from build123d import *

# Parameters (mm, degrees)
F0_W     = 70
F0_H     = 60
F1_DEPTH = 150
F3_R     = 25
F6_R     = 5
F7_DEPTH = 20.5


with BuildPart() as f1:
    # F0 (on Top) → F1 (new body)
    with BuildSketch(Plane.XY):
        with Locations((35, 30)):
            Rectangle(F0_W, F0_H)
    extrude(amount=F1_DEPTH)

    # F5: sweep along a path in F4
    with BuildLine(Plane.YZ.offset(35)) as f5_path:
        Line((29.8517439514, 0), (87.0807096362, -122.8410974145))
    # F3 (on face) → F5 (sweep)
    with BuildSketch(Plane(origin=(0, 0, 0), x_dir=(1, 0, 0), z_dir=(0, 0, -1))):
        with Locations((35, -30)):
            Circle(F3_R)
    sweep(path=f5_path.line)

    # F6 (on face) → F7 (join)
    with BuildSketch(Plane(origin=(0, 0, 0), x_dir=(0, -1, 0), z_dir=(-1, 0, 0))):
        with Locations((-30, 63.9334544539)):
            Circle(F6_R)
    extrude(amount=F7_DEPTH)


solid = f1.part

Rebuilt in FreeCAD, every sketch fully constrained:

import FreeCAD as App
import Part
import Sketcher

doc = App.newDocument("Part")
body = doc.addObject("PartDesign::Body", "Body")

# Sketch on XY plane
sketch1 = body.newObject("Sketcher::SketchObject", "Sketch")
sketch1.AttachmentSupport = (doc.getObject("XY_Plane"), [""])
sketch1.MapMode = "FlatFace"
sketch1.addGeometry([
    Part.LineSegment(App.Vector(0, 60, 0), App.Vector(0, 0, 0)),
    Part.LineSegment(App.Vector(0, 0, 0), App.Vector(70, 0, 0)),
    Part.LineSegment(App.Vector(70, 0, 0), App.Vector(70, 60, 0)),
    Part.LineSegment(App.Vector(70, 60, 0), App.Vector(0, 60, 0)),
], False)
sketch1.addConstraint([
    Sketcher.Constraint("Coincident", 0, 2, 1, 1),
    Sketcher.Constraint("Coincident", 1, 2, 2, 1),
    Sketcher.Constraint("Coincident", 2, 2, 3, 1),
    Sketcher.Constraint("Coincident", 3, 2, 0, 1),
    Sketcher.Constraint("Vertical", 0),
    Sketcher.Constraint("Horizontal", 1),
    Sketcher.Constraint("Vertical", 2),
    Sketcher.Constraint("Horizontal", 3),
    Sketcher.Constraint("Coincident", 0, 2, -1, 1),
    Sketcher.Constraint("DistanceX", 1, 1, 1, 2, 70.0),
    Sketcher.Constraint("DistanceY", 0, 2, 0, 1, 60.0),
])
pad1 = body.newObject("PartDesign::Pad", "Pad")
pad1.Profile = sketch1
pad1.Length = 150

# Sketch on XY plane
sketch2 = body.newObject("Sketcher::SketchObject", "Sketch001")
sketch2.AttachmentSupport = (doc.getObject("XY_Plane"), [""])
sketch2.MapMode = "FlatFace"
sketch2.addGeometry(Part.Circle(App.Vector(35, 30, 0), App.Vector(0, 0, 1), 25), False)
sketch2.addConstraint([
    Sketcher.Constraint("Diameter", 0, 50.0),
    Sketcher.Constraint("DistanceX", -1, 1, 0, 3, 35.0),
    Sketcher.Constraint("DistanceY", -1, 1, 0, 3, 30.0),
])

# Sketch on an angled plane
sketch3 = body.newObject("Sketcher::SketchObject", "Sketch002")
sketch3.Placement = App.Placement(App.Vector(0, 24.528107, 11.427106), App.Rotation(App.Vector(0, -0.422298335, 0.906456902), App.Vector(0.999999999, 0, 0), App.Vector(0, 0.906456902, 0.422298335), "ZXY"))
sketch3.addGeometry(Part.LineSegment(App.Vector(-13, 35, 0), App.Vector(-148, 35, 0)), False)
sketch3.addConstraint([
    Sketcher.Constraint("Horizontal", 0),
    Sketcher.Constraint("DistanceY", -1, 1, 0, 1, 35.0),
    Sketcher.Constraint("DistanceX", 0, 2, -1, 1, 148.124199),
    Sketcher.Constraint("DistanceX", 0, 2, 0, 1, 135.517857),
])
doc.recompute()

additivepipe = body.newObject("PartDesign::AdditivePipe", "AdditivePipe")
additivepipe.Profile = sketch2
additivepipe.Spine = (sketch3, ["Edge1"])

# Sketch on YZ plane
sketch4 = body.newObject("Sketcher::SketchObject", "Sketch003")
sketch4.AttachmentSupport = (doc.getObject("YZ_Plane"), [""])
sketch4.MapMode = "FlatFace"
sketch4.addGeometry(Part.Circle(App.Vector(30, 64, 0), App.Vector(0, 0, 1), 5), False)
sketch4.addConstraint([
    Sketcher.Constraint("Diameter", 0, 10.0),
    Sketcher.Constraint("DistanceX", -1, 1, 0, 3, 30.0),
    Sketcher.Constraint("DistanceY", -1, 1, 0, 3, 63.933454),
])
pad2 = body.newObject("PartDesign::Pad", "Pad001")
pad2.Profile = sketch4
pad2.Length = 20.5
pad2.Reversed = True

doc.recompute()
